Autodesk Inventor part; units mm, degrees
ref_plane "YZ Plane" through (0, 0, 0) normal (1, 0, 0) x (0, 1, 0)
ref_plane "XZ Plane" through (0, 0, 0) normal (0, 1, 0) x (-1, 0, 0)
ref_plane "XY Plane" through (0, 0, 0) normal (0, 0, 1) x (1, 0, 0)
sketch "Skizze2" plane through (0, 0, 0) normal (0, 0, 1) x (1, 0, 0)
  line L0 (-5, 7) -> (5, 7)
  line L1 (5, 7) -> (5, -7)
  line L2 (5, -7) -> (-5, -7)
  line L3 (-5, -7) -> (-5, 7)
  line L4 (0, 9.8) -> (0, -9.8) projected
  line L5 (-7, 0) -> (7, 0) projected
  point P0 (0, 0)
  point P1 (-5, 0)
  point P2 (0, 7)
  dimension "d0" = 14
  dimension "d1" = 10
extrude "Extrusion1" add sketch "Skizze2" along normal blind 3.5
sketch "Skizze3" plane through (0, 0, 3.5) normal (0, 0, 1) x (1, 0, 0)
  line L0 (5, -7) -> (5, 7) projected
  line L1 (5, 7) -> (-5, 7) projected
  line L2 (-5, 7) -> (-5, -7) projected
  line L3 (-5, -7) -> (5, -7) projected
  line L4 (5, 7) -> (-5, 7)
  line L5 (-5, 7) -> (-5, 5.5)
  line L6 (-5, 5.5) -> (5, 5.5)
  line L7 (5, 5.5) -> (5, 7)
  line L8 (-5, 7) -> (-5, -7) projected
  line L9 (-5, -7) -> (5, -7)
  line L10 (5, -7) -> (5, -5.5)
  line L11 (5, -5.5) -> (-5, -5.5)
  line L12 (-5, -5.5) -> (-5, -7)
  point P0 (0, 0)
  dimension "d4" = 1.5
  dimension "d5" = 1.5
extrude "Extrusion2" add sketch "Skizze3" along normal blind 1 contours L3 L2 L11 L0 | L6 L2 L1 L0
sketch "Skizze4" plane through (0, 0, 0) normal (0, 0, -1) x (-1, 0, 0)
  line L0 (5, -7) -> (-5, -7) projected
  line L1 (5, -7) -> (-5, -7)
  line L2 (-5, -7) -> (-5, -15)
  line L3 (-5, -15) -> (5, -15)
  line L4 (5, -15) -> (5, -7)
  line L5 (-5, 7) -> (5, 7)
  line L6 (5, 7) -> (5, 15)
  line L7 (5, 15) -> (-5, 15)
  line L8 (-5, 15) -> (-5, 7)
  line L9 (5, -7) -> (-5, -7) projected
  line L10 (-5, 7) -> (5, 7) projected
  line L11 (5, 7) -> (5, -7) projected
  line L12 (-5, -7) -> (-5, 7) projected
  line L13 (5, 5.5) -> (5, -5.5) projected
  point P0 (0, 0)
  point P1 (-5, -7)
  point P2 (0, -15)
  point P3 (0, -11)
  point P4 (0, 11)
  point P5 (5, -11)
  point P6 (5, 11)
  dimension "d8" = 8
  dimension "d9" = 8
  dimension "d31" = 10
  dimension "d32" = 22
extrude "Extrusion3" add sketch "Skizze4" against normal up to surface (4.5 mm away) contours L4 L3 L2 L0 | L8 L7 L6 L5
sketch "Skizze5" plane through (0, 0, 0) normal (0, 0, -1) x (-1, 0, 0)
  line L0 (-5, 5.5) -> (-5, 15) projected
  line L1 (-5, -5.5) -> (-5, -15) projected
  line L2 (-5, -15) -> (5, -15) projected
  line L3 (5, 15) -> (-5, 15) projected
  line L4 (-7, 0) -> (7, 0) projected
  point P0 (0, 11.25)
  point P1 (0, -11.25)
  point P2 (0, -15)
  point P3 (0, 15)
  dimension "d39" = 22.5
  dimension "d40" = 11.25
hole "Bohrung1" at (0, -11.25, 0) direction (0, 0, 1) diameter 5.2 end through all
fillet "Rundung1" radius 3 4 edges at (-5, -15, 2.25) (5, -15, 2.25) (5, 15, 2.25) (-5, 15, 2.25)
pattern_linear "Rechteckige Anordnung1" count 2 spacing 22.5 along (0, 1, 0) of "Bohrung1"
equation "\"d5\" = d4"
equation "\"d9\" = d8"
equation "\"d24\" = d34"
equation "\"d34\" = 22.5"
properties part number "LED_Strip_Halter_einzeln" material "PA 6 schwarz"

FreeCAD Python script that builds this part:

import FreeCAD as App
import Part
import Sketcher
from FreeCAD import Vector


def edges_at(feature, points):
    """Names of the edges that pass closest to the given points."""
    edges = feature.Shape.Edges
    near = lambda p: min(range(len(edges)), key=lambda i: edges[i].distToShape(Part.Vertex(*p))[0])
    return sorted({f"Edge{near(p) + 1}" for p in points})


def add_polygon(sketch, points):
    """Adds a closed chain of lines whose ends are joined by coincident constraints."""
    first, n = sketch.GeometryCount, len(points)
    for a, b in zip(points, points[1:] + points[:1]):
        sketch.addGeometry(Part.LineSegment(App.Vector(*a, 0), App.Vector(*b, 0)), False)
    for i in range(n):
        sketch.addConstraint(Sketcher.Constraint("Coincident", first + i, 2, first + (i + 1) % n, 1))

doc = App.newDocument("Part")
params = doc.addObject("Spreadsheet::Sheet", "Params")
for row, (alias, value) in enumerate([
    ("sketch1_width", "10 mm"),
    ("sketch1_height", "14 mm"),
    ("pad1_length", "3.5 mm"),
    ("sketch2_height", "1.5 mm"),
    ("sketch2_width", "10 mm"),
    ("pad2_length", "1 mm"),
    ("sketch3_width", "10 mm"),
    ("sketch3_height", "8 mm"),
    ("pad3_length", "4.5 mm"),
    ("sketch4_diameter", "5.2 mm"),
    ("hole_diameter", "5.2 mm"),
    ("fillet_radius", "3 mm"),
    ("linearpattern_pitch", "22.5 mm"),
], start=1):
    params.set(f"A{row}", alias)
    params.set(f"B{row}", "=" + value)
    params.setAlias(f"B{row}", alias)

body = doc.addObject("PartDesign::Body", "Body")

sketch1 = body.newObject("Sketcher::SketchObject", "Sketch")
sketch1.AttachmentSupport = (doc.getObject("XY_Plane"), [""])
sketch1.MapMode = "FlatFace"
add_polygon(sketch1, [(-5, 7), (-5, -7), (5, -7), (5, 7)])
sketch1.addConstraint(Sketcher.Constraint("Vertical", 0))
sketch1.addConstraint(Sketcher.Constraint("Horizontal", 1))
sketch1.addConstraint(Sketcher.Constraint("Vertical", 2))
sketch1.addConstraint(Sketcher.Constraint("Horizontal", 3))
sketch1.addConstraint(Sketcher.Constraint("Symmetric", 0, 2, 2, 2, -1, 1))
sketch1.addConstraint(Sketcher.Constraint("DistanceX", 1, 1, 1, 2, 10.0))
sketch1.addConstraint(Sketcher.Constraint("DistanceY", 0, 2, 0, 1, 14.0))
sketch1.setExpression("Constraints[9]", "Params.sketch1_width")
sketch1.setExpression("Constraints[10]", "Params.sketch1_height")
pad1 = body.newObject("PartDesign::Pad", "Pad")
pad1.Profile = sketch1
pad1.setExpression("Length", "Params.pad1_length")

sketch2 = body.newObject("Sketcher::SketchObject", "Sketch001")
sketch2.AttachmentSupport = (doc.getObject("XY_Plane"), [""])
sketch2.MapMode = "FlatFace"
sketch2.AttachmentOffset = App.Placement(Vector(0, 0, 3.5), App.Rotation())
add_polygon(sketch2, [(-5, -7), (5, -7), (5, -5.5), (-5, -5.5)])
add_polygon(sketch2, [(-5, 5.5), (5, 5.5), (5, 7), (-5, 7)])
sketch2.addConstraint(Sketcher.Constraint("Horizontal", 0))
sketch2.addConstraint(Sketcher.Constraint("Vertical", 1))
sketch2.addConstraint(Sketcher.Constraint("Horizontal", 2))
sketch2.addConstraint(Sketcher.Constraint("Vertical", 3))
sketch2.addConstraint(Sketcher.Constraint("Horizontal", 4))
sketch2.addConstraint(Sketcher.Constraint("Vertical", 5))
sketch2.addConstraint(Sketcher.Constraint("Horizontal", 6))
sketch2.addConstraint(Sketcher.Constraint("Vertical", 7))
sketch2.addConstraint(Sketcher.Constraint("Symmetric", 2, 2, 4, 2, -1, 1))
sketch2.addConstraint(Sketcher.Constraint("Symmetric", 0, 2, 6, 2, -1, 1))
sketch2.addConstraint(Sketcher.Constraint("Vertical", 1, 2, 4, 2))
sketch2.addConstraint(Sketcher.Constraint("DistanceY", 1, 1, 1, 2, 1.5))
sketch2.addConstraint(Sketcher.Constraint("DistanceX", 0, 1, 0, 2, 10.0))
sketch2.addConstraint(Sketcher.Constraint("DistanceY", 0, 2, -1, 1, 7.0))
sketch2.setExpression("Constraints[19]", "Params.sketch2_height")
sketch2.setExpression("Constraints[20]", "Params.sketch2_width")
pad2 = body.newObject("PartDesign::Pad", "Pad001")
pad2.Profile = sketch2
pad2.setExpression("Length", "Params.pad2_length")

sketch3 = body.newObject("Sketcher::SketchObject", "Sketch002")
sketch3.AttachmentSupport = (doc.getObject("XY_Plane"), [""])
sketch3.MapMode = "FlatFace"
add_polygon(sketch3, [(-5, -15), (-5, -7), (5, -7), (5, -15)])
add_polygon(sketch3, [(5, 15), (5, 7), (-5, 7), (-5, 15)])
sketch3.addConstraint(Sketcher.Constraint("Vertical", 0))
sketch3.addConstraint(Sketcher.Constraint("Horizontal", 1))
sketch3.addConstraint(Sketcher.Constraint("Vertical", 2))
sketch3.addConstraint(Sketcher.Constraint("Horizontal", 3))
sketch3.addConstraint(Sketcher.Constraint("Vertical", 4))
sketch3.addConstraint(Sketcher.Constraint("Horizontal", 5))
sketch3.addConstraint(Sketcher.Constraint("Vertical", 6))
sketch3.addConstraint(Sketcher.Constraint("Horizontal", 7))
sketch3.addConstraint(Sketcher.Constraint("Symmetric", 0, 2, 4, 2, -1, 1))
sketch3.addConstraint(Sketcher.Constraint("Symmetric", 2, 2, 6, 2, -1, 1))
sketch3.addConstraint(Sketcher.Constraint("Vertical", 2, 2, 4, 2))
sketch3.addConstraint(Sketcher.Constraint("DistanceX", 1, 1, 1, 2, 10.0))
sketch3.addConstraint(Sketcher.Constraint("DistanceY", 0, 1, 0, 2, 8.0))
sketch3.addConstraint(Sketcher.Constraint("DistanceY", 2, 2, 4, 2, 22.0))
sketch3.setExpression("Constraints[19]", "Params.sketch3_width")
sketch3.setExpression("Constraints[20]", "Params.sketch3_height")
pad3 = body.newObject("PartDesign::Pad", "Pad002")
pad3.Profile = sketch3
pad3.setExpression("Length", "Params.pad3_length")

sketch4 = body.newObject("Sketcher::SketchObject", "Sketch003")
sketch4.AttachmentSupport = (doc.getObject("XY_Plane"), [""])
sketch4.MapMode = "FlatFace"
sketch4.addGeometry(Part.Circle(Vector(0, -11.2, 0), Vector(0, 0, 1), 2.6), False)
sketch4.addConstraint(Sketcher.Constraint("PointOnObject", 0, 3, -2))
sketch4.addConstraint(Sketcher.Constraint("Diameter", 0, 5.2))
sketch4.addConstraint(Sketcher.Constraint("DistanceY", 0, 3, -1, 1, 11.25))
sketch4.setExpression("Constraints[1]", "Params.sketch4_diameter")
doc.recompute()
hole = body.newObject("PartDesign::Hole", "Hole")
hole.Profile = sketch4
hole.ThreadType = "None"
hole.setExpression("Diameter", "Params.hole_diameter")
hole.DepthType = "ThroughAll"
hole.Reversed = True
doc.recompute()

fillet = body.newObject("PartDesign::Fillet", "Fillet")
fillet.Base = (hole, edges_at(hole, [
    (-5, -15, 2.25),
    (5, -15, 2.25),
    (5, 15, 2.25),
    (-5, 15, 2.25),
]))
fillet.setExpression("Radius", "Params.fillet_radius")
doc.recompute()

linearpattern = body.newObject("PartDesign::LinearPattern", "LinearPattern")
linearpattern.Originals = [hole]
linearpattern.Direction = (doc.getObject("Y_Axis"), [""])
linearpattern.Mode = "offset"
linearpattern.setExpression("Offset", "Params.linearpattern_pitch")
linearpattern.Occurrences = 2
body.Tip = linearpattern

doc.recompute()
